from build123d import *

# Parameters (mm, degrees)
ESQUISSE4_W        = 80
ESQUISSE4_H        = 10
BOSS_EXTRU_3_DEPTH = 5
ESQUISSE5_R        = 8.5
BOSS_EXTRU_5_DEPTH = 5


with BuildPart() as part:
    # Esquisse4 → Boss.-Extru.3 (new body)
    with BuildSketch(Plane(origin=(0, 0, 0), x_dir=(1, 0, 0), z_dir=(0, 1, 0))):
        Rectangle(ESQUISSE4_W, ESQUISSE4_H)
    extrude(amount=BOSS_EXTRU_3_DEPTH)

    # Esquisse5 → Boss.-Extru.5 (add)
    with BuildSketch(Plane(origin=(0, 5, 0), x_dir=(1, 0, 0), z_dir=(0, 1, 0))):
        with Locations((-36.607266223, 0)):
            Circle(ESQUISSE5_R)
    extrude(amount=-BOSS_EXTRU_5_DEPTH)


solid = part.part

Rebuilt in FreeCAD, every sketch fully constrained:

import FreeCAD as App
import Part
import Sketcher
from FreeCAD import Vector
Q = App.Units.Quantity


def add_polygon(sketch, points):
    """Adds a closed chain of lines whose ends are joined by coincident constraints."""
    first, n = sketch.GeometryCount, len(points)
    for a, b in zip(points, points[1:] + points[:1]):
        sketch.addGeometry(Part.LineSegment(App.Vector(*a, 0), App.Vector(*b, 0)), False)
    for i in range(n):
        sketch.addConstraint(Sketcher.Constraint("Coincident", first + i, 2, first + (i + 1) % n, 1))

doc = App.newDocument("Part")
body = doc.addObject("PartDesign::Body", "Body")

sketch1 = body.newObject("Sketcher::SketchObject", "Sketch")
sketch1.AttachmentSupport = (doc.getObject("XZ_Plane"), [""])
sketch1.MapMode = "FlatFace"
add_polygon(sketch1, [(-40, -5), (-40, 5), (40, 5), (40, -5)])
sketch1.addConstraint([
    Sketcher.Constraint("Vertical", 0),
    Sketcher.Constraint("Horizontal", 1),
    Sketcher.Constraint("Vertical", 2),
    Sketcher.Constraint("Horizontal", 3),
    Sketcher.Constraint("Symmetric", 0, 2, 2, 2, -1, 1),
    Sketcher.Constraint("DistanceX", 1, 1, 1, 2, Q("80 mm")),
    Sketcher.Constraint("DistanceY", 0, 1, 0, 2, Q("10 mm")),
])
pad1 = body.newObject("PartDesign::Pad", "Pad")
pad1.Profile = sketch1
pad1.Length = 5
pad1.Reversed = True

sketch2 = body.newObject("Sketcher::SketchObject", "Sketch001")
sketch2.AttachmentSupport = (doc.getObject("XZ_Plane"), [""])
sketch2.MapMode = "FlatFace"
sketch2.AttachmentOffset = App.Placement(Vector(0, 0, -5), App.Rotation())
sketch2.addGeometry(Part.Circle(Vector(-37, 0, 0), Vector(0, 0, 1), 8), False)
sketch2.addConstraint([
    Sketcher.Constraint("PointOnObject", 0, 3, -1),
    Sketcher.Constraint("Diameter", 0, Q("17 mm")),
    Sketcher.Constraint("DistanceX", 0, 3, -1, 1, Q("36.607266 mm")),
])
pad2 = body.newObject("PartDesign::Pad", "Pad001")
pad2.Profile = sketch2
pad2.Length = 5

doc.recompute()
